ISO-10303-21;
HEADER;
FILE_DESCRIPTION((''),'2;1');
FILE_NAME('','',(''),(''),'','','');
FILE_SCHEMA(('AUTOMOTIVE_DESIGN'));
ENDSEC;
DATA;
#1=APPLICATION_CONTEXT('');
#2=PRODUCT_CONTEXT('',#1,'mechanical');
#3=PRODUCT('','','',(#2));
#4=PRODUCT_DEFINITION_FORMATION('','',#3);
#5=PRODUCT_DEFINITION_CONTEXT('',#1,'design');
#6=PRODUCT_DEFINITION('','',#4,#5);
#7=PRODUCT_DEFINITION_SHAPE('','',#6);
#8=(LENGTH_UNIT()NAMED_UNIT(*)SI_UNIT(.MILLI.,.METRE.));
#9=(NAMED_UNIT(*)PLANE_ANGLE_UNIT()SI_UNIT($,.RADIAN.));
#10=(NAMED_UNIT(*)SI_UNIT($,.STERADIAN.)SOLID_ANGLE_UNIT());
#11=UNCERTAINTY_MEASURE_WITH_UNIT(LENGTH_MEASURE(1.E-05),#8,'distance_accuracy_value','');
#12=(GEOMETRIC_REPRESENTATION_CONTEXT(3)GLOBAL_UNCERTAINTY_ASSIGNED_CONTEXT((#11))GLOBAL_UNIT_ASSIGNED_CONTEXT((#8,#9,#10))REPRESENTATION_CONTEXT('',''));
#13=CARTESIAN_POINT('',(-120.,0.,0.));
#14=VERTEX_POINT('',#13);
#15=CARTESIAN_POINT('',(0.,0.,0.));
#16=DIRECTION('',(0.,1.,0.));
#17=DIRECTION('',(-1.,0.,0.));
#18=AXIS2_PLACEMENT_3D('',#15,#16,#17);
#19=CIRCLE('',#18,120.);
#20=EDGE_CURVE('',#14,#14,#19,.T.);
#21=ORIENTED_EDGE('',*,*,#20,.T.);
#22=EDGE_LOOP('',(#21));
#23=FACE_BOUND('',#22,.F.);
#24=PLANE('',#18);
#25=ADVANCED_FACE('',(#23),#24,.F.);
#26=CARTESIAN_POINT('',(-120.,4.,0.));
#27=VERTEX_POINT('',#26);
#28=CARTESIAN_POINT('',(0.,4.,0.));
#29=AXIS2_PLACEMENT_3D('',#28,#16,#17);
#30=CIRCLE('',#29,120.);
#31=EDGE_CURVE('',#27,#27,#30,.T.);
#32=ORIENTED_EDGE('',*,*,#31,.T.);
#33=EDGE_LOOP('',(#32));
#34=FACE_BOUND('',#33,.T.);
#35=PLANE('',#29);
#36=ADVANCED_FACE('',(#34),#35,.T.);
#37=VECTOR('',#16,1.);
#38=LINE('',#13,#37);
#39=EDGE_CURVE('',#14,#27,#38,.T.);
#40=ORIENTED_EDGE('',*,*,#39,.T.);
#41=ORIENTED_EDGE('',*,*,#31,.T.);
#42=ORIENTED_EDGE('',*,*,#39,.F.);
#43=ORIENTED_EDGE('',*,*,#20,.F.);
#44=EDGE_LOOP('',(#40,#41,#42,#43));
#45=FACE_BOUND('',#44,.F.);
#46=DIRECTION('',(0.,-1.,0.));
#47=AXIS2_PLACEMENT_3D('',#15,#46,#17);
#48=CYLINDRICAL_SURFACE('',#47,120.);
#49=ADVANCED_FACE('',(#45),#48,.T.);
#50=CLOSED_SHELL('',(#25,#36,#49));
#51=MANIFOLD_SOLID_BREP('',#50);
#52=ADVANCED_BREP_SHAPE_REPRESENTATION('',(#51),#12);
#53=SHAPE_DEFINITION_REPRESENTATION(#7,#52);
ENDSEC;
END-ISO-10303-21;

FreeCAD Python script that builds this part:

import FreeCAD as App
import Part
import Sketcher

doc = App.newDocument("Part")
body = doc.addObject("PartDesign::Body", "Body")

sketch1 = doc.addObject("Sketcher::SketchObject", "Sketch")
body.addObject(sketch1)
sketch1.AttachmentSupport = (doc.XZ_Plane, [""])
sketch1.MapMode = "FlatFace"
sketch1.addGeometry(Part.Circle(App.Vector(0, 0, 0), App.Vector(0, 0, 1), 120), False)
sketch1.addConstraint([
    Sketcher.Constraint("Coincident", 0, 3, -1, 1),
    Sketcher.Constraint("Diameter", 0, 240.0),
])
pad1 = doc.addObject("PartDesign::Pad", "Pad")
body.addObject(pad1)
pad1.Profile = sketch1
pad1.Length = 4
pad1.Reversed = True

doc.recompute()
